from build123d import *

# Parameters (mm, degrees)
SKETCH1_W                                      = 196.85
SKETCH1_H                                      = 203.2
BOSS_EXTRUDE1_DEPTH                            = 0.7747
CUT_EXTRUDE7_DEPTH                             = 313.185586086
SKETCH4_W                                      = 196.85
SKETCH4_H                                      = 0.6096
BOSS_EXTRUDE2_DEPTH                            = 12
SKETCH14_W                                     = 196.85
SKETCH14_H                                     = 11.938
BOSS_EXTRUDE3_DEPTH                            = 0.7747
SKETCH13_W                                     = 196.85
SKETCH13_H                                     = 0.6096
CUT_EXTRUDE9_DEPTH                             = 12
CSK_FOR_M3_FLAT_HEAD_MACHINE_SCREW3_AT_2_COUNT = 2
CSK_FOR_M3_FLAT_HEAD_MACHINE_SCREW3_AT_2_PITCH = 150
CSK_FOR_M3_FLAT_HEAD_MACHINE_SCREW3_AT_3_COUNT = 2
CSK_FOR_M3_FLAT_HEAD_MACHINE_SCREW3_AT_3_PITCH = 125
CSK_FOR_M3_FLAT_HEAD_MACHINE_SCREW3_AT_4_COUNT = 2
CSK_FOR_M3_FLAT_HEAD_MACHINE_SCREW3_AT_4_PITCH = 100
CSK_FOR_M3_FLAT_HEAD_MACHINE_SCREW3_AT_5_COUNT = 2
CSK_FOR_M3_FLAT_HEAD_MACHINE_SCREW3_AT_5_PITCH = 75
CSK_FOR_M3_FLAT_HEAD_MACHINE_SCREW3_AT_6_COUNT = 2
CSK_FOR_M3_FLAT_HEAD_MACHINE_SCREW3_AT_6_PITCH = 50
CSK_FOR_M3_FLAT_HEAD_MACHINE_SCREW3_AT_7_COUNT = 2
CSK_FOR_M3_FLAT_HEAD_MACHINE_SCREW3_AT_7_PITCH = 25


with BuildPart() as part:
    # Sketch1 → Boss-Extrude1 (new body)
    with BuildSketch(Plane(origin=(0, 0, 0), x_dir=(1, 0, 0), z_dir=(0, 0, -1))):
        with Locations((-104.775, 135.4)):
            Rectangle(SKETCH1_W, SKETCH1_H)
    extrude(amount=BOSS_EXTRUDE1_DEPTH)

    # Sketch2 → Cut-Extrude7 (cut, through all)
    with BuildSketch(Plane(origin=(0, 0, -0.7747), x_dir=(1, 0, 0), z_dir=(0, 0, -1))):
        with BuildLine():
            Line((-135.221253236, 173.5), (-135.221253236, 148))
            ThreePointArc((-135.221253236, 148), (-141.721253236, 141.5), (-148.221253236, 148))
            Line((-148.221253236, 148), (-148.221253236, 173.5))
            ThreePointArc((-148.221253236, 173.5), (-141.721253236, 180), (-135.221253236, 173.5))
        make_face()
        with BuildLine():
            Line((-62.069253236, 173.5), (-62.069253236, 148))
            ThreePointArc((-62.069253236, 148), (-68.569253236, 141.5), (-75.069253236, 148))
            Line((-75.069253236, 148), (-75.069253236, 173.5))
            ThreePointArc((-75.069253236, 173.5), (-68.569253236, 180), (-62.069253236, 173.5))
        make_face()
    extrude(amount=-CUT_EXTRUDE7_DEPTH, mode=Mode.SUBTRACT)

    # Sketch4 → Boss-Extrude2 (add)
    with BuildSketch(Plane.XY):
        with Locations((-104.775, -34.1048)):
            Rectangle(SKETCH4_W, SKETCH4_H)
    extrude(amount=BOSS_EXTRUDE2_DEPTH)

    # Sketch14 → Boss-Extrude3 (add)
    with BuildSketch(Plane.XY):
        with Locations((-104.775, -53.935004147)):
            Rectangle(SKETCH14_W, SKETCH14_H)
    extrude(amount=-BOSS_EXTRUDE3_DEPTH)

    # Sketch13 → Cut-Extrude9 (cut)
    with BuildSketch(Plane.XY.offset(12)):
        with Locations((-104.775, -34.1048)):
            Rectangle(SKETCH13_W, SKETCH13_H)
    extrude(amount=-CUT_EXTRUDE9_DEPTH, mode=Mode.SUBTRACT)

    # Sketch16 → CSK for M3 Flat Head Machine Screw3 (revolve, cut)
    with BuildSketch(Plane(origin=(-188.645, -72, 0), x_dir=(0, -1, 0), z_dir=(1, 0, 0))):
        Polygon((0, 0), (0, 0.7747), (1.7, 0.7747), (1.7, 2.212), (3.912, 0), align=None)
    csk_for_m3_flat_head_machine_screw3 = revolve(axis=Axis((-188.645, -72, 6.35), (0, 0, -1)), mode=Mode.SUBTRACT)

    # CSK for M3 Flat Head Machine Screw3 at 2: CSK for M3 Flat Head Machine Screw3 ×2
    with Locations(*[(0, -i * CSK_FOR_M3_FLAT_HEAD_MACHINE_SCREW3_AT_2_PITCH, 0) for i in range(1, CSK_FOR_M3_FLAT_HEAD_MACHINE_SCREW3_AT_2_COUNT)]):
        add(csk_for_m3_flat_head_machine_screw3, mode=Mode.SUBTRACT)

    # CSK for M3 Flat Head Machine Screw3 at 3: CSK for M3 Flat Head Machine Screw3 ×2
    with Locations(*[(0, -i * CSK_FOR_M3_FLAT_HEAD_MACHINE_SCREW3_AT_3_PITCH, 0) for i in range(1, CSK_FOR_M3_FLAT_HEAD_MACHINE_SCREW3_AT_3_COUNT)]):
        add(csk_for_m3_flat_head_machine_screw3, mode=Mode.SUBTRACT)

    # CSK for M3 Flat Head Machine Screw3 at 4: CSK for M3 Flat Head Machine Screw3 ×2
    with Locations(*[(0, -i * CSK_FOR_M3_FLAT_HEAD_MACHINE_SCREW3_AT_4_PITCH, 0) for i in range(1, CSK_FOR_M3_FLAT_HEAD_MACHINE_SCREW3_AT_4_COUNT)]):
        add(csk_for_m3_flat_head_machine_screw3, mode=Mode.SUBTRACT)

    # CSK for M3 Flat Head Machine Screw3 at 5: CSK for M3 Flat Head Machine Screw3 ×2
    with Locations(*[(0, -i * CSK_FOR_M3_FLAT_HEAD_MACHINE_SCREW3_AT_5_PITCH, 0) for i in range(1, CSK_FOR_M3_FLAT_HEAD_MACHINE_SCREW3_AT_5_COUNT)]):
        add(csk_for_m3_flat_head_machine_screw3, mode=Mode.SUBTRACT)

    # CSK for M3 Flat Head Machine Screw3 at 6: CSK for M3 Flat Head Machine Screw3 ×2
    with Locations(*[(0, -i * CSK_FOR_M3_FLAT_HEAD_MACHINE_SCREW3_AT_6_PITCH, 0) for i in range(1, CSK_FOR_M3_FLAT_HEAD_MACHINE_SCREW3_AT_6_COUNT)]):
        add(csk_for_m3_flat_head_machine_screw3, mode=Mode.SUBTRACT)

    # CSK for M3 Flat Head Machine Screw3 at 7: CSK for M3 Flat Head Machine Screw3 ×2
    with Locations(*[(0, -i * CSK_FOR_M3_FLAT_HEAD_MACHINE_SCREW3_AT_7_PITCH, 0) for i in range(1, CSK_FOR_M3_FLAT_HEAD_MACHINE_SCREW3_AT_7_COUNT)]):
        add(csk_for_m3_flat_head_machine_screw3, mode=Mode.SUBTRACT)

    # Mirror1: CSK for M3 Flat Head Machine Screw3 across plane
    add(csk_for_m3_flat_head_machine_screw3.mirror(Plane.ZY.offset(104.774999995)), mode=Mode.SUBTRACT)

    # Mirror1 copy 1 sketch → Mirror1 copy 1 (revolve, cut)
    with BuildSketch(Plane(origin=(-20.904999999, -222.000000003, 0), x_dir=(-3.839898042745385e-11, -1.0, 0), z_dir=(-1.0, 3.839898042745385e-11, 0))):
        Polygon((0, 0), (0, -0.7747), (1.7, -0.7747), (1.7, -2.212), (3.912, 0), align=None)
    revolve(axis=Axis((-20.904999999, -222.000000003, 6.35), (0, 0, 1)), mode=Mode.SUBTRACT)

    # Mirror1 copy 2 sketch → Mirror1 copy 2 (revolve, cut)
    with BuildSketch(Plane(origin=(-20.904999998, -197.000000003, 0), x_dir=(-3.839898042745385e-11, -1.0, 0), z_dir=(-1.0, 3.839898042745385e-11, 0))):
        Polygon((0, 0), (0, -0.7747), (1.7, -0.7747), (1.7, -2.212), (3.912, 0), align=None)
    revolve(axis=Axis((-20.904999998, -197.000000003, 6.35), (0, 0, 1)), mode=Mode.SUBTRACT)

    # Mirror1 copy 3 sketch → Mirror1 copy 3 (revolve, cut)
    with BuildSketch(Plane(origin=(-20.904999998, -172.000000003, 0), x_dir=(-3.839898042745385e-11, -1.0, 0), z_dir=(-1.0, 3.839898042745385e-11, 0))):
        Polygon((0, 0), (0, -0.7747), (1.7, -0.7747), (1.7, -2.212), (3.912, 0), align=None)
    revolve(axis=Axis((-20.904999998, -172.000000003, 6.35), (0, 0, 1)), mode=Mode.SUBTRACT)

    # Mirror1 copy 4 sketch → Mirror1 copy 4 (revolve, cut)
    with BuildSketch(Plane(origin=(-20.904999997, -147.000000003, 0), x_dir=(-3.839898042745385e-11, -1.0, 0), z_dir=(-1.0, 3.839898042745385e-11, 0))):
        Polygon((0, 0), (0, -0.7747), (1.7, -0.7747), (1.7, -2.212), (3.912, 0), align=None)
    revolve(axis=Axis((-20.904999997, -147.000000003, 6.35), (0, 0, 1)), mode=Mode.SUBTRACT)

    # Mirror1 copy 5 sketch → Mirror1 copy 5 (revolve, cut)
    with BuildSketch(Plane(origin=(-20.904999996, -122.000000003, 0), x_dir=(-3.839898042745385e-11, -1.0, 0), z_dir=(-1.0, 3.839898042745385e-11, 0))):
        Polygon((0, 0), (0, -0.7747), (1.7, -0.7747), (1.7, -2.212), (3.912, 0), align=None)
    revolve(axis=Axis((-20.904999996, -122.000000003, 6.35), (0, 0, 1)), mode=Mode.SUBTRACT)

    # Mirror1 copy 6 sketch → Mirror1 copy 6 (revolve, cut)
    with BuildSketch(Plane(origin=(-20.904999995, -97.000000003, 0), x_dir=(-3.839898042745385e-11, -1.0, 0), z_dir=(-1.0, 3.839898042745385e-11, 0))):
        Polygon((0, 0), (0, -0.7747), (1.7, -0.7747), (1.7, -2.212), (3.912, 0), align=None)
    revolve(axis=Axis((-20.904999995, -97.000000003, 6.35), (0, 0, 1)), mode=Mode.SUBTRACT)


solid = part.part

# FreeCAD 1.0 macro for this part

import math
import FreeCAD as App
import Part
import Sketcher
Q = App.Units.Quantity


def add_polygon(sketch, points):
    """Adds a closed chain of lines whose ends are joined by coincident constraints."""
    first, n = sketch.GeometryCount, len(points)
    for a, b in zip(points, points[1:] + points[:1]):
        sketch.addGeometry(Part.LineSegment(App.Vector(*a, 0), App.Vector(*b, 0)), False)
    for i in range(n):
        sketch.addConstraint(Sketcher.Constraint("Coincident", first + i, 2, first + (i + 1) % n, 1))

doc = App.newDocument("Part")
body = doc.addObject("PartDesign::Body", "Body")

# Sketch on XY plane
sketch1 = body.newObject("Sketcher::SketchObject", "Sketch")
sketch1.AttachmentSupport = (doc.getObject("XY_Plane"), [""])
sketch1.MapMode = "FlatFace"
add_polygon(sketch1, [(-203, -237), (-203, -34), (-6, -34), (-6, -237)])  # lines 0-3
sketch1.addConstraint([
    Sketcher.Constraint("Vertical", 0),
    Sketcher.Constraint("Horizontal", 1),
    Sketcher.Constraint("Vertical", 2),
    Sketcher.Constraint("Horizontal", 3),
    Sketcher.Constraint("DistanceY", 0, 1, 0, 2, Q("203.2 mm")),
    Sketcher.Constraint("DistanceY", 2, 2, -1, 1, Q("237 mm")),
    Sketcher.Constraint("DistanceX", 1, 1, 1, 2, Q("196.85 mm")),
    Sketcher.Constraint("DistanceX", 0, 2, -1, 1, Q("203.2 mm")),
])
pad1 = body.newObject("PartDesign::Pad", "Pad")
pad1.Profile = sketch1
pad1.Length = 0.7747
pad1.Reversed = True

# Sketch on XY plane
sketch2 = body.newObject("Sketcher::SketchObject", "Sketch001")
sketch2.AttachmentSupport = (doc.getObject("XY_Plane"), [""])
sketch2.MapMode = "FlatFace"
sketch2.AttachmentOffset = App.Placement(App.Vector(0, 0, -0.7747), App.Rotation())
sketch2.addGeometry([
    Part.LineSegment(App.Vector(-135, -148, 0), App.Vector(-135, -174, 0)),  # 0
    Part.ArcOfCircle(Part.Circle(App.Vector(-142, -174, 0), App.Vector(0, 0, 1), 6), math.radians(180), math.radians(360)),  # 1
    Part.LineSegment(App.Vector(-148, -174, 0), App.Vector(-148, -148, 0)),  # 2
    Part.ArcOfCircle(Part.Circle(App.Vector(-142, -148, 0), App.Vector(0, 0, 1), 6), math.radians(0), math.radians(180)),  # 3
    Part.LineSegment(App.Vector(-62, -148, 0), App.Vector(-62, -174, 0)),  # 4
    Part.ArcOfCircle(Part.Circle(App.Vector(-69, -174, 0), App.Vector(0, 0, 1), 6), math.radians(180), math.radians(360)),  # 5
    Part.LineSegment(App.Vector(-75, -174, 0), App.Vector(-75, -148, 0)),  # 6
    Part.ArcOfCircle(Part.Circle(App.Vector(-69, -148, 0), App.Vector(0, 0, 1), 6), math.radians(0), math.radians(180)),  # 7
], False)
sketch2.addConstraint([
    Sketcher.Constraint("Tangent", 0, 2, 1, 2),
    Sketcher.Constraint("Tangent", 1, 1, 2, 1),
    Sketcher.Constraint("Tangent", 2, 2, 3, 2),
    Sketcher.Constraint("Tangent", 3, 1, 0, 1),
    Sketcher.Constraint("Tangent", 4, 2, 5, 2),
    Sketcher.Constraint("Tangent", 5, 1, 6, 1),
    Sketcher.Constraint("Tangent", 6, 2, 7, 2),
    Sketcher.Constraint("Tangent", 7, 1, 4, 1),
    Sketcher.Constraint("Vertical", 0),
    Sketcher.Constraint("Vertical", 2),
    Sketcher.Constraint("Vertical", 4),
    Sketcher.Constraint("Vertical", 6),
    Sketcher.Constraint("Equal", 3, 5),
    Sketcher.Constraint("Horizontal", 1, 3, 5, 3),
    Sketcher.Constraint("Horizontal", 3, 3, 7, 3),
    Sketcher.Constraint("Radius", 1, Q("6.5 mm")),
    Sketcher.Constraint("DistanceY", 0, 2, 0, 1, Q("25.5 mm")),
    Sketcher.Constraint("DistanceY", 3, 3, -1, 1, Q("148 mm")),
    Sketcher.Constraint("DistanceX", 1, 3, 5, 3, Q("73.152 mm")),
    Sketcher.Constraint("DistanceX", 1, 3, -1, 1, Q("141.721253 mm")),
])
pocket1 = body.newObject("PartDesign::Pocket", "Pocket")
pocket1.Profile = sketch2
pocket1.Type = "ThroughAll"
pocket1.Reversed = True

# Sketch on XY plane
sketch3 = body.newObject("Sketcher::SketchObject", "Sketch002")
sketch3.AttachmentSupport = (doc.getObject("XY_Plane"), [""])
sketch3.MapMode = "FlatFace"
add_polygon(sketch3, [(-203.2, -33.8), (-203.2, -34.4), (-6.3, -34.4), (-6.3, -33.8)])  # lines 0-3
sketch3.addConstraint([
    Sketcher.Constraint("Vertical", 0),
    Sketcher.Constraint("Horizontal", 1),
    Sketcher.Constraint("Vertical", 2),
    Sketcher.Constraint("Horizontal", 3),
    Sketcher.Constraint("DistanceX", 1, 1, 1, 2, Q("196.85 mm")),
    Sketcher.Constraint("DistanceX", 0, 2, -1, 1, Q("203.2 mm")),
    Sketcher.Constraint("DistanceY", 2, 2, -1, 1, Q("33.8 mm")),
    Sketcher.Constraint("DistanceY", 0, 2, 0, 1, Q("0.6096 mm")),
])
pad2 = body.newObject("PartDesign::Pad", "Pad001")
pad2.Profile = sketch3
pad2.Length = 12

# Sketch on XY plane
sketch4 = body.newObject("Sketcher::SketchObject", "Sketch003")
sketch4.AttachmentSupport = (doc.getObject("XY_Plane"), [""])
sketch4.MapMode = "FlatFace"
add_polygon(sketch4, [(-203, -48), (-203, -60), (-6, -60), (-6, -48)])  # lines 0-3
sketch4.addConstraint([
    Sketcher.Constraint("Vertical", 0),
    Sketcher.Constraint("Horizontal", 1),
    Sketcher.Constraint("Vertical", 2),
    Sketcher.Constraint("Horizontal", 3),
    Sketcher.Constraint("DistanceX", 1, 1, 1, 2, Q("196.85 mm")),
    Sketcher.Constraint("DistanceX", 0, 2, -1, 1, Q("203.2 mm")),
    Sketcher.Constraint("DistanceY", 0, 2, 0, 1, Q("11.938 mm")),
    Sketcher.Constraint("DistanceY", 0, 2, -1, 1, Q("59.904004 mm")),
])
pad3 = body.newObject("PartDesign::Pad", "Pad002")
pad3.Profile = sketch4
pad3.Length = 0.7747
pad3.Reversed = True

# Sketch on XY plane
sketch5 = body.newObject("Sketcher::SketchObject", "Sketch004")
sketch5.AttachmentSupport = (doc.getObject("XY_Plane"), [""])
sketch5.MapMode = "FlatFace"
sketch5.AttachmentOffset = App.Placement(App.Vector(0, 0, 12), App.Rotation())
add_polygon(sketch5, [(-203.2, -33.8), (-203.2, -34.4), (-6.3, -34.4), (-6.3, -33.8)])  # lines 0-3
sketch5.addConstraint([
    Sketcher.Constraint("Vertical", 0),
    Sketcher.Constraint("Horizontal", 1),
    Sketcher.Constraint("Vertical", 2),
    Sketcher.Constraint("Horizontal", 3),
    Sketcher.Constraint("DistanceX", 1, 1, 1, 2, Q("196.85 mm")),
    Sketcher.Constraint("DistanceX", 0, 2, -1, 1, Q("203.2 mm")),
    Sketcher.Constraint("DistanceY", 2, 2, -1, 1, Q("33.8 mm")),
    Sketcher.Constraint("DistanceY", 0, 2, 0, 1, Q("0.6096 mm")),
])
pocket2 = body.newObject("PartDesign::Pocket", "Pocket001")
pocket2.Profile = sketch5
pocket2.Length = 12

# Sketch on YZ plane
sketch6 = body.newObject("Sketcher::SketchObject", "Sketch005")
sketch6.AttachmentSupport = (doc.getObject("YZ_Plane"), [""])
sketch6.MapMode = "FlatFace"
sketch6.AttachmentOffset = App.Placement(App.Vector(0, 0, -188.645), App.Rotation())
add_polygon(sketch6, [(-72, -0.8), (-72, 0), (-75.9, 0), (-73.7, -2.2), (-73.7, -0.8)])  # lines 0-4
sketch6.addGeometry(Part.LineSegment(App.Vector(-72, 0, 0), App.Vector(-72, -2.2, 0)), True)  # axis
sketch6.addConstraint([
    Sketcher.Constraint("Vertical", 0),
    Sketcher.Constraint("Horizontal", 1),
    Sketcher.Constraint("Vertical", 3),
    Sketcher.Constraint("Horizontal", 4),
    Sketcher.Constraint("Vertical", 5),
    Sketcher.Constraint("Coincident", 5, 1, 0, 2),
    Sketcher.Constraint("PointOnObject", 0, 2, -1),
    Sketcher.Constraint("Horizontal", 2, 2, 5, 2),
    Sketcher.Constraint("Angle", 2, Q("-45 deg")),
    Sketcher.Constraint("DistanceX", 4, 1, 4, 2, Q("1.7 mm")),
    Sketcher.Constraint("DistanceX", 0, 2, -1, 1, Q("72 mm")),
    Sketcher.Constraint("DistanceX", 1, 2, 1, 1, Q("3.912 mm")),
    Sketcher.Constraint("DistanceY", 0, 1, 0, 2, Q("0.7747 mm")),
])
groove = body.newObject("PartDesign::Groove", "Groove")
groove.Profile = sketch6
groove.ReferenceAxis = (sketch6, ["Axis0"])
groove.Angle = 360
doc.recompute()

linearpattern = body.newObject("PartDesign::LinearPattern", "LinearPattern")
linearpattern.Originals = [groove]
linearpattern.Direction = (doc.getObject("Y_Axis"), [""])
linearpattern.Mode = "offset"
linearpattern.Offset = 150
linearpattern.Occurrences = 2
linearpattern.Reversed = True
body.Tip = linearpattern
doc.recompute()

linearpattern2 = body.newObject("PartDesign::LinearPattern", "LinearPattern001")
linearpattern2.Originals = [groove]
linearpattern2.Direction = (doc.getObject("Y_Axis"), [""])
linearpattern2.Mode = "offset"
linearpattern2.Offset = 125
linearpattern2.Occurrences = 2
linearpattern2.Reversed = True
body.Tip = linearpattern2
doc.recompute()

linearpattern3 = body.newObject("PartDesign::LinearPattern", "LinearPattern002")
linearpattern3.Originals = [groove]
linearpattern3.Direction = (doc.getObject("Y_Axis"), [""])
linearpattern3.Mode = "offset"
linearpattern3.Offset = 100
linearpattern3.Occurrences = 2
linearpattern3.Reversed = True
body.Tip = linearpattern3
doc.recompute()

linearpattern4 = body.newObject("PartDesign::LinearPattern", "LinearPattern003")
linearpattern4.Originals = [groove]
linearpattern4.Direction = (doc.getObject("Y_Axis"), [""])
linearpattern4.Mode = "offset"
linearpattern4.Offset = 75
linearpattern4.Occurrences = 2
linearpattern4.Reversed = True
body.Tip = linearpattern4
doc.recompute()

linearpattern5 = body.newObject("PartDesign::LinearPattern", "LinearPattern004")
linearpattern5.Originals = [groove]
linearpattern5.Direction = (doc.getObject("Y_Axis"), [""])
linearpattern5.Mode = "offset"
linearpattern5.Offset = 50
linearpattern5.Occurrences = 2
linearpattern5.Reversed = True
body.Tip = linearpattern5
doc.recompute()

linearpattern6 = body.newObject("PartDesign::LinearPattern", "LinearPattern005")
linearpattern6.Originals = [groove]
linearpattern6.Direction = (doc.getObject("Y_Axis"), [""])
linearpattern6.Mode = "offset"
linearpattern6.Offset = 25
linearpattern6.Occurrences = 2
linearpattern6.Reversed = True
body.Tip = linearpattern6
doc.recompute()

datumplane = body.newObject("PartDesign::Plane", "DatumPlane")
datumplane.AttachmentSupport = (doc.getObject("YZ_Plane"), [""])
datumplane.MapMode = "FlatFace"
datumplane.AttachmentOffset = App.Placement(App.Vector(0, 0, -104.775), App.Rotation())
mirrored = body.newObject("PartDesign::Mirrored", "Mirrored")
mirrored.Originals = [groove]
mirrored.MirrorPlane = (datumplane, [""])
body.Tip = mirrored

# Sketch on YZ plane
sketch7 = body.newObject("Sketcher::SketchObject", "Sketch006")
sketch7.AttachmentSupport = (doc.getObject("YZ_Plane"), [""])
sketch7.MapMode = "FlatFace"
sketch7.AttachmentOffset = App.Placement(App.Vector(0, 0, -20.905), App.Rotation())
add_polygon(sketch7, [(-222, 0), (-222, -0.8), (-223.7, -0.8), (-223.7, -2.2), (-225.9, 0)])  # lines 0-4
sketch7.addGeometry(Part.LineSegment(App.Vector(-222, -2.2, 0), App.Vector(-222, 0, 0)), True)  # axis
sketch7.addConstraint([
    Sketcher.Constraint("Vertical", 0),
    Sketcher.Constraint("Horizontal", 1),
    Sketcher.Constraint("Vertical", 2),
    Sketcher.Constraint("Horizontal", 4),
    Sketcher.Constraint("Vertical", 5),
    Sketcher.Constraint("Coincident", 5, 2, 4, 2),
    Sketcher.Constraint("PointOnObject", 3, 2, -1),
    Sketcher.Constraint("Horizontal", 2, 2, 5, 1),
    Sketcher.Constraint("Angle", 3, Q("135 deg")),
    Sketcher.Constraint("DistanceX", 1, 2, 1, 1, Q("1.7 mm")),
    Sketcher.Constraint("DistanceX", 0, 2, -1, 1, Q("222 mm")),
    Sketcher.Constraint("DistanceX", 4, 1, 4, 2, Q("3.912 mm")),
    Sketcher.Constraint("DistanceY", 0, 2, 0, 1, Q("0.7747 mm")),
])
groove2 = body.newObject("PartDesign::Groove", "Groove001")
groove2.Profile = sketch7
groove2.ReferenceAxis = (sketch7, ["Axis0"])
groove2.Angle = 360

# Sketch on YZ plane
sketch8 = body.newObject("Sketcher::SketchObject", "Sketch007")
sketch8.AttachmentSupport = (doc.getObject("YZ_Plane"), [""])
sketch8.MapMode = "FlatFace"
sketch8.AttachmentOffset = App.Placement(App.Vector(0, 0, -20.905), App.Rotation())
add_polygon(sketch8, [(-197, 0), (-197, -0.8), (-198.7, -0.8), (-198.7, -2.2), (-200.9, 0)])  # lines 0-4
sketch8.addGeometry(Part.LineSegment(App.Vector(-197, -2.2, 0), App.Vector(-197, 0, 0)), True)  # axis
sketch8.addConstraint([
    Sketcher.Constraint("Vertical", 0),
    Sketcher.Constraint("Horizontal", 1),
    Sketcher.Constraint("Vertical", 2),
    Sketcher.Constraint("Horizontal", 4),
    Sketcher.Constraint("Vertical", 5),
    Sketcher.Constraint("Coincident", 5, 2, 4, 2),
    Sketcher.Constraint("PointOnObject", 3, 2, -1),
    Sketcher.Constraint("Horizontal", 2, 2, 5, 1),
    Sketcher.Constraint("Angle", 3, Q("135 deg")),
    Sketcher.Constraint("DistanceX", 1, 2, 1, 1, Q("1.7 mm")),
    Sketcher.Constraint("DistanceX", 0, 2, -1, 1, Q("197 mm")),
    Sketcher.Constraint("DistanceX", 4, 1, 4, 2, Q("3.912 mm")),
    Sketcher.Constraint("DistanceY", 0, 2, 0, 1, Q("0.7747 mm")),
])
groove3 = body.newObject("PartDesign::Groove", "Groove002")
groove3.Profile = sketch8
groove3.ReferenceAxis = (sketch8, ["Axis0"])
groove3.Angle = 360

# Sketch on YZ plane
sketch9 = body.newObject("Sketcher::SketchObject", "Sketch008")
sketch9.AttachmentSupport = (doc.getObject("YZ_Plane"), [""])
sketch9.MapMode = "FlatFace"
sketch9.AttachmentOffset = App.Placement(App.Vector(0, 0, -20.905), App.Rotation())
add_polygon(sketch9, [(-172, 0), (-172, -0.8), (-173.7, -0.8), (-173.7, -2.2), (-175.9, 0)])  # lines 0-4
sketch9.addGeometry(Part.LineSegment(App.Vector(-172, -2.2, 0), App.Vector(-172, 0, 0)), True)  # axis
sketch9.addConstraint([
    Sketcher.Constraint("Vertical", 0),
    Sketcher.Constraint("Horizontal", 1),
    Sketcher.Constraint("Vertical", 2),
    Sketcher.Constraint("Horizontal", 4),
    Sketcher.Constraint("Vertical", 5),
    Sketcher.Constraint("Coincident", 5, 2, 4, 2),
    Sketcher.Constraint("PointOnObject", 3, 2, -1),
    Sketcher.Constraint("Horizontal", 2, 2, 5, 1),
    Sketcher.Constraint("Angle", 3, Q("135 deg")),
    Sketcher.Constraint("DistanceX", 1, 2, 1, 1, Q("1.7 mm")),
    Sketcher.Constraint("DistanceX", 0, 2, -1, 1, Q("172 mm")),
    Sketcher.Constraint("DistanceX", 4, 1, 4, 2, Q("3.912 mm")),
    Sketcher.Constraint("DistanceY", 0, 2, 0, 1, Q("0.7747 mm")),
])
groove4 = body.newObject("PartDesign::Groove", "Groove003")
groove4.Profile = sketch9
groove4.ReferenceAxis = (sketch9, ["Axis0"])
groove4.Angle = 360

# Sketch on YZ plane
sketch10 = body.newObject("Sketcher::SketchObject", "Sketch009")
sketch10.AttachmentSupport = (doc.getObject("YZ_Plane"), [""])
sketch10.MapMode = "FlatFace"
sketch10.AttachmentOffset = App.Placement(App.Vector(0, 0, -20.905), App.Rotation())
add_polygon(sketch10, [(-147, 0), (-147, -0.8), (-148.7, -0.8), (-148.7, -2.2), (-150.9, 0)])  # lines 0-4
sketch10.addGeometry(Part.LineSegment(App.Vector(-147, -2.2, 0), App.Vector(-147, 0, 0)), True)  # axis
sketch10.addConstraint([
    Sketcher.Constraint("Vertical", 0),
    Sketcher.Constraint("Horizontal", 1),
    Sketcher.Constraint("Vertical", 2),
    Sketcher.Constraint("Horizontal", 4),
    Sketcher.Constraint("Vertical", 5),
    Sketcher.Constraint("Coincident", 5, 2, 4, 2),
    Sketcher.Constraint("PointOnObject", 3, 2, -1),
    Sketcher.Constraint("Horizontal", 2, 2, 5, 1),
    Sketcher.Constraint("Angle", 3, Q("135 deg")),
    Sketcher.Constraint("DistanceX", 1, 2, 1, 1, Q("1.7 mm")),
    Sketcher.Constraint("DistanceX", 0, 2, -1, 1, Q("147 mm")),
    Sketcher.Constraint("DistanceX", 4, 1, 4, 2, Q("3.912 mm")),
    Sketcher.Constraint("DistanceY", 0, 2, 0, 1, Q("0.7747 mm")),
])
groove5 = body.newObject("PartDesign::Groove", "Groove004")
groove5.Profile = sketch10
groove5.ReferenceAxis = (sketch10, ["Axis0"])
groove5.Angle = 360

# Sketch on YZ plane
sketch11 = body.newObject("Sketcher::SketchObject", "Sketch010")
sketch11.AttachmentSupport = (doc.getObject("YZ_Plane"), [""])
sketch11.MapMode = "FlatFace"
sketch11.AttachmentOffset = App.Placement(App.Vector(0, 0, -20.905), App.Rotation())
add_polygon(sketch11, [(-122, 0), (-122, -0.8), (-123.7, -0.8), (-123.7, -2.2), (-125.9, 0)])  # lines 0-4
sketch11.addGeometry(Part.LineSegment(App.Vector(-122, -2.2, 0), App.Vector(-122, 0, 0)), True)  # axis
sketch11.addConstraint([
    Sketcher.Constraint("Vertical", 0),
    Sketcher.Constraint("Horizontal", 1),
    Sketcher.Constraint("Vertical", 2),
    Sketcher.Constraint("Horizontal", 4),
    Sketcher.Constraint("Vertical", 5),
    Sketcher.Constraint("Coincident", 5, 2, 4, 2),
    Sketcher.Constraint("PointOnObject", 3, 2, -1),
    Sketcher.Constraint("Horizontal", 2, 2, 5, 1),
    Sketcher.Constraint("Angle", 3, Q("135 deg")),
    Sketcher.Constraint("DistanceX", 1, 2, 1, 1, Q("1.7 mm")),
    Sketcher.Constraint("DistanceX", 0, 2, -1, 1, Q("122 mm")),
    Sketcher.Constraint("DistanceX", 4, 1, 4, 2, Q("3.912 mm")),
    Sketcher.Constraint("DistanceY", 0, 2, 0, 1, Q("0.7747 mm")),
])
groove6 = body.newObject("PartDesign::Groove", "Groove005")
groove6.Profile = sketch11
groove6.ReferenceAxis = (sketch11, ["Axis0"])
groove6.Angle = 360

# Sketch on YZ plane
sketch12 = body.newObject("Sketcher::SketchObject", "Sketch011")
sketch12.AttachmentSupport = (doc.getObject("YZ_Plane"), [""])
sketch12.MapMode = "FlatFace"
sketch12.AttachmentOffset = App.Placement(App.Vector(0, 0, -20.905), App.Rotation())
add_polygon(sketch12, [(-97, 0), (-97, -0.8), (-98.7, -0.8), (-98.7, -2.2), (-100.9, 0)])  # lines 0-4
sketch12.addGeometry(Part.LineSegment(App.Vector(-97, -2.2, 0), App.Vector(-97, 0, 0)), True)  # axis
sketch12.addConstraint([
    Sketcher.Constraint("Vertical", 0),
    Sketcher.Constraint("Horizontal", 1),
    Sketcher.Constraint("Vertical", 2),
    Sketcher.Constraint("Horizontal", 4),
    Sketcher.Constraint("Vertical", 5),
    Sketcher.Constraint("Coincident", 5, 2, 4, 2),
    Sketcher.Constraint("PointOnObject", 3, 2, -1),
    Sketcher.Constraint("Horizontal", 2, 2, 5, 1),
    Sketcher.Constraint("Angle", 3, Q("135 deg")),
    Sketcher.Constraint("DistanceX", 1, 2, 1, 1, Q("1.7 mm")),
    Sketcher.Constraint("DistanceX", 0, 2, -1, 1, Q("97 mm")),
    Sketcher.Constraint("DistanceX", 4, 1, 4, 2, Q("3.912 mm")),
    Sketcher.Constraint("DistanceY", 0, 2, 0, 1, Q("0.7747 mm")),
])
groove7 = body.newObject("PartDesign::Groove", "Groove006")
groove7.Profile = sketch12
groove7.ReferenceAxis = (sketch12, ["Axis0"])
groove7.Angle = 360

doc.recompute()
